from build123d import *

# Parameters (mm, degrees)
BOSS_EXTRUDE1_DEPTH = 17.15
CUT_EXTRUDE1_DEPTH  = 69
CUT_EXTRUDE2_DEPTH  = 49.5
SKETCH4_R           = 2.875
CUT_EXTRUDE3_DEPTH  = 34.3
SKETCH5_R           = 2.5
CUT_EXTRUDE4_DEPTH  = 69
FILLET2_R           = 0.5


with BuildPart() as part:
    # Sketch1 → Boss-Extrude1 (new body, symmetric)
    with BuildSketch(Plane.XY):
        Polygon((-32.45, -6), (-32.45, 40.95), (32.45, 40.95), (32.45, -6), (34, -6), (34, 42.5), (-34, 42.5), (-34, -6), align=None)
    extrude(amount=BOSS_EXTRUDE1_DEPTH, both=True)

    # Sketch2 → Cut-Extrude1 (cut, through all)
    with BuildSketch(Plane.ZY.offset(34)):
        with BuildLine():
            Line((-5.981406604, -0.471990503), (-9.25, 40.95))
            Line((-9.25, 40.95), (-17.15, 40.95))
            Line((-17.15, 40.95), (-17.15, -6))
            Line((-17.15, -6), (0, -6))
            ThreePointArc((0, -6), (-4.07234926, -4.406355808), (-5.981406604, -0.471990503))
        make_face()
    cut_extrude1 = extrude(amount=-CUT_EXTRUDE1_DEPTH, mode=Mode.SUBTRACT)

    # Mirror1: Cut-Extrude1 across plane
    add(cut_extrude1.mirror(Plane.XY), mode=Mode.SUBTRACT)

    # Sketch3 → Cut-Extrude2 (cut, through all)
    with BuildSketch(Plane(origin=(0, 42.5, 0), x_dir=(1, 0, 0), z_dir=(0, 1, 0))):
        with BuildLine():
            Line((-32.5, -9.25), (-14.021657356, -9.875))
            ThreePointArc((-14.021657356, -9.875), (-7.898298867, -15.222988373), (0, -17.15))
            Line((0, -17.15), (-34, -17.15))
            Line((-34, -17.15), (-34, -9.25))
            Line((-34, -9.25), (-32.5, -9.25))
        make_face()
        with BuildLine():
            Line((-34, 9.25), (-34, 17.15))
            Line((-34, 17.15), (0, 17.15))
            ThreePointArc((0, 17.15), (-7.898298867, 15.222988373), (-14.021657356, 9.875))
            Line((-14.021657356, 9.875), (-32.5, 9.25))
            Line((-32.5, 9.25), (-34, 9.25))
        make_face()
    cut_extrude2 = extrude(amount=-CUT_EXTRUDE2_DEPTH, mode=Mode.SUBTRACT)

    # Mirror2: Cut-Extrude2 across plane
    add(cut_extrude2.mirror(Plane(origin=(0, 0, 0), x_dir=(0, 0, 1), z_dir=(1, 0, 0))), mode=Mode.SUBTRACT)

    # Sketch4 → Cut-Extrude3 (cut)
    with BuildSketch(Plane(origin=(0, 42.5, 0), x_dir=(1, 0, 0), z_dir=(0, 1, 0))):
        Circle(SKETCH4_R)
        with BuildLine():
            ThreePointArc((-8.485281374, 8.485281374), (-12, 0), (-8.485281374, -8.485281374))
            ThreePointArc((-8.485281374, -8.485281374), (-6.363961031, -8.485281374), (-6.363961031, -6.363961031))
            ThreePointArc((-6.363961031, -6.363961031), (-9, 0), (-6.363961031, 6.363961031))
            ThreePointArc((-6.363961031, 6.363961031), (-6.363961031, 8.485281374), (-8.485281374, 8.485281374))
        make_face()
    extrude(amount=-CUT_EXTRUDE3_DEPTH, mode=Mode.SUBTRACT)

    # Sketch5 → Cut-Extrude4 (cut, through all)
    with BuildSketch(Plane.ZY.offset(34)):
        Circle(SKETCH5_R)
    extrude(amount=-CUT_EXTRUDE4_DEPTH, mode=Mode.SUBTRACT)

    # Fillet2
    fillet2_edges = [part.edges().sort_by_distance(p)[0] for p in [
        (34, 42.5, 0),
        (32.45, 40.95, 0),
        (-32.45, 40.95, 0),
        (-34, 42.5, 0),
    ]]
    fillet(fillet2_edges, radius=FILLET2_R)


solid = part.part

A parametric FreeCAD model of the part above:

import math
import FreeCAD as App
import Part
import Sketcher
Q = App.Units.Quantity


def edges_at(feature, points):
    """Names of the edges that pass closest to the given points."""
    edges = feature.Shape.Edges
    near = lambda p: min(range(len(edges)), key=lambda i: edges[i].distToShape(Part.Vertex(*p))[0])
    return sorted({f"Edge{near(p) + 1}" for p in points})


def add_polygon(sketch, points):
    """Adds a closed chain of lines whose ends are joined by coincident constraints."""
    first, n = sketch.GeometryCount, len(points)
    for a, b in zip(points, points[1:] + points[:1]):
        sketch.addGeometry(Part.LineSegment(App.Vector(*a, 0), App.Vector(*b, 0)), False)
    for i in range(n):
        sketch.addConstraint(Sketcher.Constraint("Coincident", first + i, 2, first + (i + 1) % n, 1))

doc = App.newDocument("Part")
body = doc.addObject("PartDesign::Body", "Body")

# Sketch on XY plane
sketch1 = body.newObject("Sketcher::SketchObject", "Sketch")
sketch1.AttachmentSupport = (doc.getObject("XY_Plane"), [""])
sketch1.MapMode = "FlatFace"
add_polygon(sketch1, [(-32.45, -6), (-32.45, 40.95), (32.45, 40.95), (32.45, -6), (34, -6), (34, 42.5), (-34, 42.5), (-34, -6)])  # lines 0-7
sketch1.addConstraint([
    Sketcher.Constraint("Vertical", 0),
    Sketcher.Constraint("Horizontal", 1),
    Sketcher.Constraint("Vertical", 2),
    Sketcher.Constraint("Horizontal", 3),
    Sketcher.Constraint("Vertical", 4),
    Sketcher.Constraint("Horizontal", 5),
    Sketcher.Constraint("Vertical", 6),
    Sketcher.Constraint("Horizontal", 7),
    Sketcher.Constraint("Symmetric", 3, 2, 6, 2, -2),
    Sketcher.Constraint("Equal", 3, 7),
    Sketcher.Constraint("DistanceX", 5, 2, 5, 1, Q("68 mm")),
    Sketcher.Constraint("DistanceX", 1, 1, 1, 2, Q("64.9 mm")),
    Sketcher.Constraint("DistanceY", 4, 1, 4, 2, Q("48.5 mm")),
    Sketcher.Constraint("DistanceY", 2, 2, -1, 1, Q("6 mm")),
    Sketcher.Constraint("DistanceY", 0, 1, 0, 2, Q("46.95 mm")),
])
pad1 = body.newObject("PartDesign::Pad", "Pad")
pad1.Profile = sketch1
pad1.Length = 34.3
pad1.Midplane = True

# Sketch on YZ plane
sketch2 = body.newObject("Sketcher::SketchObject", "Sketch001")
sketch2.AttachmentSupport = (doc.getObject("YZ_Plane"), [""])
sketch2.MapMode = "FlatFace"
sketch2.AttachmentOffset = App.Placement(App.Vector(0, 0, -34), App.Rotation())
sketch2.addGeometry([
    Part.LineSegment(App.Vector(-0.471991, -5.981407, 0), App.Vector(40.95, -9.25, 0)),  # 0
    Part.LineSegment(App.Vector(40.95, -9.25, 0), App.Vector(40.95, -17.15, 0)),  # 1
    Part.LineSegment(App.Vector(40.95, -17.15, 0), App.Vector(-6, -17.15, 0)),  # 2
    Part.LineSegment(App.Vector(-6, -17.15, 0), App.Vector(-6, 0, 0)),  # 3
    Part.ArcOfCircle(Part.Circle(App.Vector(0, 0, 0), App.Vector(0, 0, 1), 6), math.radians(180), math.radians(265.488161)),  # 4
], False)
sketch2.addConstraint([
    Sketcher.Constraint("Coincident", 0, 2, 1, 1),
    Sketcher.Constraint("Coincident", 1, 2, 2, 1),
    Sketcher.Constraint("Coincident", 2, 2, 3, 1),
    Sketcher.Constraint("Tangent", 3, 2, 4, 1),
    Sketcher.Constraint("Tangent", 4, 2, 0, 1),
    Sketcher.Constraint("Vertical", 1),
    Sketcher.Constraint("Horizontal", 2),
    Sketcher.Constraint("Vertical", 3),
    Sketcher.Constraint("Coincident", 4, 3, -1, 1),
    Sketcher.Constraint("Radius", 4, Q("6 mm")),
    Sketcher.Constraint("DistanceY", 1, 2, 1, 1, Q("7.9 mm")),
    Sketcher.Constraint("DistanceX", 2, 2, 2, 1, Q("46.95 mm")),
    Sketcher.Constraint("DistanceY", 3, 1, 3, 2, Q("17.15 mm")),
])
pocket1 = body.newObject("PartDesign::Pocket", "Pocket")
pocket1.Profile = sketch2
pocket1.Type = "ThroughAll"
pocket1.Reversed = True
doc.recompute()

mirrored = body.newObject("PartDesign::Mirrored", "Mirrored")
mirrored.Originals = [pocket1]
mirrored.MirrorPlane = (doc.getObject("XY_Plane"), [""])
body.Tip = mirrored

# Sketch on XZ plane
sketch3 = body.newObject("Sketcher::SketchObject", "Sketch002")
sketch3.AttachmentSupport = (doc.getObject("XZ_Plane"), [""])
sketch3.MapMode = "FlatFace"
sketch3.AttachmentOffset = App.Placement(App.Vector(0, 0, -42.5), App.Rotation())
sketch3.addGeometry([
    Part.LineSegment(App.Vector(-14.021657, 9.875, 0), App.Vector(-32.5, 9.25, 0)),  # 0
    Part.LineSegment(App.Vector(-32.5, 9.25, 0), App.Vector(-34, 9.25, 0)),  # 1
    Part.LineSegment(App.Vector(-34, 9.25, 0), App.Vector(-34, 17.15, 0)),  # 2
    Part.LineSegment(App.Vector(-34, 17.15, 0), App.Vector(0, 17.15, 0)),  # 3
    Part.ArcOfCircle(Part.Circle(App.Vector(0, 0, 0), App.Vector(0, 0, 1), 17.15), math.radians(90), math.radians(144.844201)),  # 4
    Part.LineSegment(App.Vector(-34, -17.15, 0), App.Vector(-34, -9.25, 0)),  # 5
    Part.LineSegment(App.Vector(-34, -9.25, 0), App.Vector(-32.5, -9.25, 0)),  # 6
    Part.LineSegment(App.Vector(-32.5, -9.25, 0), App.Vector(-14.021657, -9.875, 0)),  # 7
    Part.ArcOfCircle(Part.Circle(App.Vector(0, 0, 0), App.Vector(0, 0, 1), 17.15), math.radians(-144.844201), math.radians(-90)),  # 8
    Part.LineSegment(App.Vector(0, -17.15, 0), App.Vector(-34, -17.15, 0)),  # 9
], False)
sketch3.addConstraint([
    Sketcher.Constraint("Coincident", 0, 2, 1, 1),
    Sketcher.Constraint("Coincident", 1, 2, 2, 1),
    Sketcher.Constraint("Coincident", 2, 2, 3, 1),
    Sketcher.Constraint("Tangent", 3, 2, 4, 1),
    Sketcher.Constraint("Coincident", 4, 2, 0, 1),
    Sketcher.Constraint("Coincident", 5, 2, 6, 1),
    Sketcher.Constraint("Coincident", 6, 2, 7, 1),
    Sketcher.Constraint("Coincident", 7, 2, 8, 1),
    Sketcher.Constraint("Tangent", 8, 2, 9, 1),
    Sketcher.Constraint("Coincident", 9, 2, 5, 1),
    Sketcher.Constraint("Horizontal", 1),
    Sketcher.Constraint("Vertical", 2),
    Sketcher.Constraint("Horizontal", 3),
    Sketcher.Constraint("Vertical", 5),
    Sketcher.Constraint("Horizontal", 6),
    Sketcher.Constraint("Horizontal", 9),
    Sketcher.Constraint("Coincident", 4, 3, -1, 1),
    Sketcher.Constraint("Coincident", 8, 3, -1, 1),
    Sketcher.Constraint("Equal", 4, 8),
    Sketcher.Constraint("Symmetric", 1, 2, 5, 2, -1),
    Sketcher.Constraint("Vertical", 0, 2, 6, 2),
    Sketcher.Constraint("Vertical", 4, 2, 7, 2),
    Sketcher.Constraint("DistanceX", 3, 1, 3, 2, Q("34 mm")),
    Sketcher.Constraint("Radius", 4, Q("17.15 mm")),
    Sketcher.Constraint("DistanceX", 1, 2, 1, 1, Q("1.5 mm")),
    Sketcher.Constraint("DistanceY", 2, 1, 2, 2, Q("7.9 mm")),
    Sketcher.Constraint("DistanceY", 7, 2, 4, 2, Q("19.75 mm")),
])
pocket2 = body.newObject("PartDesign::Pocket", "Pocket001")
pocket2.Profile = sketch3
pocket2.Type = "ThroughAll"
pocket2.Reversed = True
doc.recompute()

mirrored2 = body.newObject("PartDesign::Mirrored", "Mirrored001")
mirrored2.Originals = [pocket2]
mirrored2.MirrorPlane = (doc.getObject("YZ_Plane"), [""])
body.Tip = mirrored2

# Sketch on XZ plane
sketch4 = body.newObject("Sketcher::SketchObject", "Sketch003")
sketch4.AttachmentSupport = (doc.getObject("XZ_Plane"), [""])
sketch4.MapMode = "FlatFace"
sketch4.AttachmentOffset = App.Placement(App.Vector(0, 0, -42.5), App.Rotation())
sketch4.addGeometry([
    Part.Circle(App.Vector(0, 0, 0), App.Vector(0, 0, 1), 2.875),  # 0
    Part.ArcOfCircle(Part.Circle(App.Vector(0, 0, 0), App.Vector(0, 0, 1), 12), math.radians(135), math.radians(225)),  # 1
    Part.ArcOfCircle(Part.Circle(App.Vector(-7.424621, 7.424621, 0), App.Vector(0, 0, 1), 1.5), math.radians(-45), math.radians(135)),  # 2
    Part.ArcOfCircle(Part.Circle(App.Vector(0, 0, 0), App.Vector(0, 0, 1), 9), math.radians(135), math.radians(225)),  # 3
    Part.ArcOfCircle(Part.Circle(App.Vector(-7.424621, -7.424621, 0), App.Vector(0, 0, 1), 1.5), math.radians(-135), math.radians(45)),  # 4
], False)
sketch4.addConstraint([
    Sketcher.Constraint("Tangent", 1, 1, 2, 2),
    Sketcher.Constraint("Tangent", 2, 1, 3, 1),
    Sketcher.Constraint("Tangent", 3, 2, 4, 2),
    Sketcher.Constraint("Tangent", 4, 1, 1, 2),
    Sketcher.Constraint("Coincident", 0, 3, -1, 1),
    Sketcher.Constraint("Coincident", 1, 3, -1, 1),
    Sketcher.Constraint("Coincident", 3, 3, -1, 1),
    Sketcher.Constraint("Vertical", 2, 3, 4, 3),
    Sketcher.Constraint("Radius", 1, Q("12 mm")),
    Sketcher.Constraint("Radius", 3, Q("9 mm")),
    Sketcher.Constraint("Diameter", 0, Q("5.75 mm")),
    Sketcher.Constraint("DistanceX", 2, 3, -1, 1, Q("7.424621 mm")),
])
pocket3 = body.newObject("PartDesign::Pocket", "Pocket002")
pocket3.Profile = sketch4
pocket3.Length = 34.3
pocket3.Reversed = True

# Sketch on YZ plane
sketch5 = body.newObject("Sketcher::SketchObject", "Sketch004")
sketch5.AttachmentSupport = (doc.getObject("YZ_Plane"), [""])
sketch5.MapMode = "FlatFace"
sketch5.AttachmentOffset = App.Placement(App.Vector(0, 0, -34), App.Rotation())
sketch5.addGeometry(Part.Circle(App.Vector(0, 0, 0), App.Vector(0, 0, 1), 2.5), False)
sketch5.addConstraint([
    Sketcher.Constraint("Coincident", 0, 3, -1, 1),
    Sketcher.Constraint("Diameter", 0, Q("5 mm")),
])
pocket4 = body.newObject("PartDesign::Pocket", "Pocket003")
pocket4.Profile = sketch5
pocket4.Type = "ThroughAll"
pocket4.Reversed = True
doc.recompute()

fillet = body.newObject("PartDesign::Fillet", "Fillet")
fillet.Base = (pocket4, edges_at(pocket4, [
    (34, 42.5, 0),
    (32.45, 40.95, 0),
    (-32.45, 40.95, 0),
    (-34, 42.5, 0),
]))
fillet.Radius = 0.5

doc.recompute()
